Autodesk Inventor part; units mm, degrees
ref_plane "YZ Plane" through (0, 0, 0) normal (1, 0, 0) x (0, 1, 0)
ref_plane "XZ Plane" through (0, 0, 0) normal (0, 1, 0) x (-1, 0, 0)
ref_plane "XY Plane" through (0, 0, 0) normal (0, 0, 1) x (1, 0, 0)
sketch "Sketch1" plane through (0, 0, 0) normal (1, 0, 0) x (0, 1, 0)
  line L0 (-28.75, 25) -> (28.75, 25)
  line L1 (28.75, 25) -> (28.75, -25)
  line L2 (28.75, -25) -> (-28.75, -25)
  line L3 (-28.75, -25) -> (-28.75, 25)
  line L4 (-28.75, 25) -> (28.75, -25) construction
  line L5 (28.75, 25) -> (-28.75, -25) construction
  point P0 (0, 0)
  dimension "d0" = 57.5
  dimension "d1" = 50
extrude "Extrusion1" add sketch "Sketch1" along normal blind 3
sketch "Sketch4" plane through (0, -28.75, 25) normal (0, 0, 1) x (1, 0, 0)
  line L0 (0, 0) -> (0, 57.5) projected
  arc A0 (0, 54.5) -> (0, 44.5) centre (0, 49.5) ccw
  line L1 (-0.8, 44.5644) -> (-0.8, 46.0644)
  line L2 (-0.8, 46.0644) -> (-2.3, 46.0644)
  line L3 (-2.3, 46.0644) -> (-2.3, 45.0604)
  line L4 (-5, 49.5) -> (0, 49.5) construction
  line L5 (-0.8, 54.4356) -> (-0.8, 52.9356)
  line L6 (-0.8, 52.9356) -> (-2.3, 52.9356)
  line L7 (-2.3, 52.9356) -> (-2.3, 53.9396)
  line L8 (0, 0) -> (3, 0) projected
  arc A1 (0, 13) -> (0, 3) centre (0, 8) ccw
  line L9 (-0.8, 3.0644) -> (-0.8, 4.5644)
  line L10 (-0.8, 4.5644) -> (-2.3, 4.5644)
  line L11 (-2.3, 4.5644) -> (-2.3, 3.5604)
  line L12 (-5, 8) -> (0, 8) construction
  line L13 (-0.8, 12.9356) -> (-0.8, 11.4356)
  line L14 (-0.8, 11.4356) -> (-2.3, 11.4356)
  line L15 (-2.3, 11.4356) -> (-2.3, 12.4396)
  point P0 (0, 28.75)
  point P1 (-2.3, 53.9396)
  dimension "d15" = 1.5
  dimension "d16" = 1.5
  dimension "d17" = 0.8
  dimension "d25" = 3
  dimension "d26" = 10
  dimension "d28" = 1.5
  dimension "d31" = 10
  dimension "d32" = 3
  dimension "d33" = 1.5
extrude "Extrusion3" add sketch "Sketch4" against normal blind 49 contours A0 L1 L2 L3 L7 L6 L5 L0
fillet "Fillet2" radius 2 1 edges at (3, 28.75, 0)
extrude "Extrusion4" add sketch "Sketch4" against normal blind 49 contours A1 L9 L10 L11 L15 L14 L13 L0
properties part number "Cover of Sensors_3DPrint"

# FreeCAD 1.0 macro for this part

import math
import FreeCAD as App
import Part
import Sketcher
from FreeCAD import Vector
Q = App.Units.Quantity


def edges_at(feature, points):
    """Names of the edges that pass closest to the given points."""
    edges = feature.Shape.Edges
    near = lambda p: min(range(len(edges)), key=lambda i: edges[i].distToShape(Part.Vertex(*p))[0])
    return sorted({f"Edge{near(p) + 1}" for p in points})

doc = App.newDocument("Part")
body = doc.addObject("PartDesign::Body", "Body")

sketch1 = body.newObject("Sketcher::SketchObject", "Sketch")
sketch1.AttachmentSupport = (doc.getObject("YZ_Plane"), [""])
sketch1.MapMode = "FlatFace"
sketch1.addGeometry([
    Part.LineSegment(Vector(29, 25, 0), Vector(-29, 25, 0)),
    Part.LineSegment(Vector(-29, 25, 0), Vector(-29, -25, 0)),
    Part.LineSegment(Vector(-29, -25, 0), Vector(29, -25, 0)),
    Part.LineSegment(Vector(29, -25, 0), Vector(29, 25, 0)),
], False)
sketch1.addConstraint([
    Sketcher.Constraint("Coincident", 0, 2, 1, 1),
    Sketcher.Constraint("Coincident", 1, 2, 2, 1),
    Sketcher.Constraint("Coincident", 2, 2, 3, 1),
    Sketcher.Constraint("Coincident", 3, 2, 0, 1),
    Sketcher.Constraint("Horizontal", 0),
    Sketcher.Constraint("Vertical", 1),
    Sketcher.Constraint("Horizontal", 2),
    Sketcher.Constraint("Vertical", 3),
    Sketcher.Constraint("Symmetric", 0, 2, 2, 2, -1, 1),
    Sketcher.Constraint("DistanceY", 1, 2, 1, 1, Q("50 mm")),
    Sketcher.Constraint("DistanceX", 0, 2, 0, 1, Q("57.5 mm")),
])
pad1 = body.newObject("PartDesign::Pad", "Pad")
pad1.Profile = sketch1
pad1.Length = 3

sketch2 = body.newObject("Sketcher::SketchObject", "Sketch001")
sketch2.AttachmentSupport = (doc.getObject("XY_Plane"), [""])
sketch2.MapMode = "FlatFace"
sketch2.AttachmentOffset = App.Placement(Vector(0, 0, 25), App.Rotation())
sketch2.addGeometry([
    Part.ArcOfCircle(Part.Circle(Vector(0, 20.8, 0), Vector(0, 0, 1), 5), math.radians(-99.21), math.radians(-90)),
    Part.LineSegment(Vector(0, 15.8, 0), Vector(0, 25.8, 0)),
    Part.ArcOfCircle(Part.Circle(Vector(0, 20.8, 0), Vector(0, 0, 1), 5), math.radians(90), math.radians(99.21)),
    Part.LineSegment(Vector(-0.8, 25.7, 0), Vector(-0.8, 24.2, 0)),
    Part.LineSegment(Vector(-0.8, 24.2, 0), Vector(-2.3, 24.2, 0)),
    Part.LineSegment(Vector(-2.3, 24.2, 0), Vector(-2.3, 25.2, 0)),
    Part.ArcOfCircle(Part.Circle(Vector(0, 20.8, 0), Vector(0, 0, 1), 5), math.radians(117), math.radians(243)),
    Part.LineSegment(Vector(-2.3, 16.3, 0), Vector(-2.3, 17.3, 0)),
    Part.LineSegment(Vector(-2.3, 17.3, 0), Vector(-0.8, 17.3, 0)),
    Part.LineSegment(Vector(-0.8, 17.3, 0), Vector(-0.8, 15.8, 0)),
], False)
sketch2.addConstraint([
    Sketcher.Constraint("Coincident", 0, 2, 1, 1),
    Sketcher.Constraint("Coincident", 1, 2, 2, 1),
    Sketcher.Constraint("Coincident", 2, 2, 3, 1),
    Sketcher.Constraint("Coincident", 3, 2, 4, 1),
    Sketcher.Constraint("Coincident", 4, 2, 5, 1),
    Sketcher.Constraint("Coincident", 5, 2, 6, 1),
    Sketcher.Constraint("Coincident", 6, 2, 7, 1),
    Sketcher.Constraint("Coincident", 7, 2, 8, 1),
    Sketcher.Constraint("Coincident", 8, 2, 9, 1),
    Sketcher.Constraint("Coincident", 9, 2, 0, 1),
    Sketcher.Constraint("Vertical", 1),
    Sketcher.Constraint("Vertical", 3),
    Sketcher.Constraint("Horizontal", 4),
    Sketcher.Constraint("Vertical", 5),
    Sketcher.Constraint("Vertical", 7),
    Sketcher.Constraint("Horizontal", 8),
    Sketcher.Constraint("Vertical", 9),
    Sketcher.Constraint("Coincident", 2, 3, 0, 3),
    Sketcher.Constraint("Coincident", 6, 3, 0, 3),
    Sketcher.Constraint("Equal", 0, 2),
    Sketcher.Constraint("Equal", 2, 6),
    Sketcher.Constraint("PointOnObject", 0, 3, -2),
    Sketcher.Constraint("PointOnObject", 0, 2, -2),
    Sketcher.Constraint("Vertical", 5, 2, 6, 2),
    Sketcher.Constraint("Vertical", 3, 2, 8, 2),
    Sketcher.Constraint("Equal", 8, 3),
    Sketcher.Constraint("Equal", 5, 7),
    Sketcher.Constraint("Radius", 0, Q("5 mm")),
    Sketcher.Constraint("DistanceX", 4, 2, 4, 1, Q("1.5 mm")),
    Sketcher.Constraint("DistanceX", 2, 2, -1, 1, Q("0.8 mm")),
    Sketcher.Constraint("DistanceY", -1, 1, 0, 3, Q("20.75 mm")),
])
pad2 = body.newObject("PartDesign::Pad", "Pad001")
pad2.Profile = sketch2
pad2.Length = 49
pad2.Reversed = True
doc.recompute()

fillet = body.newObject("PartDesign::Fillet", "Fillet")
fillet.Base = (pad2, edges_at(pad2, [(3, 28.75, 0)]))
fillet.Radius = 2

sketch3 = body.newObject("Sketcher::SketchObject", "Sketch002")
sketch3.AttachmentSupport = (doc.getObject("XY_Plane"), [""])
sketch3.MapMode = "FlatFace"
sketch3.AttachmentOffset = App.Placement(Vector(0, 0, 25), App.Rotation())
sketch3.addGeometry([
    Part.ArcOfCircle(Part.Circle(Vector(0, -20.8, 0), Vector(0, 0, 1), 5), math.radians(-99.21), math.radians(-90)),
    Part.LineSegment(Vector(0, -25.8, 0), Vector(0, -15.8, 0)),
    Part.ArcOfCircle(Part.Circle(Vector(0, -20.8, 0), Vector(0, 0, 1), 5), math.radians(90), math.radians(99.21)),
    Part.LineSegment(Vector(-0.8, -15.8, 0), Vector(-0.8, -17.3, 0)),
    Part.LineSegment(Vector(-0.8, -17.3, 0), Vector(-2.3, -17.3, 0)),
    Part.LineSegment(Vector(-2.3, -17.3, 0), Vector(-2.3, -16.3, 0)),
    Part.ArcOfCircle(Part.Circle(Vector(0, -20.8, 0), Vector(0, 0, 1), 5), math.radians(117), math.radians(243)),
    Part.LineSegment(Vector(-2.3, -25.2, 0), Vector(-2.3, -24.2, 0)),
    Part.LineSegment(Vector(-2.3, -24.2, 0), Vector(-0.8, -24.2, 0)),
    Part.LineSegment(Vector(-0.8, -24.2, 0), Vector(-0.8, -25.7, 0)),
], False)
sketch3.addConstraint([
    Sketcher.Constraint("Coincident", 0, 2, 1, 1),
    Sketcher.Constraint("Coincident", 1, 2, 2, 1),
    Sketcher.Constraint("Coincident", 2, 2, 3, 1),
    Sketcher.Constraint("Coincident", 3, 2, 4, 1),
    Sketcher.Constraint("Coincident", 4, 2, 5, 1),
    Sketcher.Constraint("Coincident", 5, 2, 6, 1),
    Sketcher.Constraint("Coincident", 6, 2, 7, 1),
    Sketcher.Constraint("Coincident", 7, 2, 8, 1),
    Sketcher.Constraint("Coincident", 8, 2, 9, 1),
    Sketcher.Constraint("Coincident", 9, 2, 0, 1),
    Sketcher.Constraint("Vertical", 1),
    Sketcher.Constraint("Vertical", 3),
    Sketcher.Constraint("Horizontal", 4),
    Sketcher.Constraint("Vertical", 5),
    Sketcher.Constraint("Vertical", 7),
    Sketcher.Constraint("Horizontal", 8),
    Sketcher.Constraint("Vertical", 9),
    Sketcher.Constraint("Coincident", 2, 3, 0, 3),
    Sketcher.Constraint("Coincident", 6, 3, 0, 3),
    Sketcher.Constraint("Equal", 0, 2),
    Sketcher.Constraint("Equal", 2, 6),
    Sketcher.Constraint("PointOnObject", 0, 3, -2),
    Sketcher.Constraint("PointOnObject", 0, 2, -2),
    Sketcher.Constraint("Vertical", 5, 2, 6, 2),
    Sketcher.Constraint("Vertical", 3, 2, 8, 2),
    Sketcher.Constraint("Equal", 8, 3),
    Sketcher.Constraint("Equal", 5, 7),
    Sketcher.Constraint("Radius", 0, Q("5 mm")),
    Sketcher.Constraint("DistanceX", 4, 2, 4, 1, Q("1.5 mm")),
    Sketcher.Constraint("DistanceX", 2, 2, -1, 1, Q("0.8 mm")),
    Sketcher.Constraint("DistanceY", 0, 3, -1, 1, Q("20.75 mm")),
])
pad3 = body.newObject("PartDesign::Pad", "Pad002")
pad3.Profile = sketch3
pad3.Length = 49
pad3.Reversed = True

doc.recompute()
